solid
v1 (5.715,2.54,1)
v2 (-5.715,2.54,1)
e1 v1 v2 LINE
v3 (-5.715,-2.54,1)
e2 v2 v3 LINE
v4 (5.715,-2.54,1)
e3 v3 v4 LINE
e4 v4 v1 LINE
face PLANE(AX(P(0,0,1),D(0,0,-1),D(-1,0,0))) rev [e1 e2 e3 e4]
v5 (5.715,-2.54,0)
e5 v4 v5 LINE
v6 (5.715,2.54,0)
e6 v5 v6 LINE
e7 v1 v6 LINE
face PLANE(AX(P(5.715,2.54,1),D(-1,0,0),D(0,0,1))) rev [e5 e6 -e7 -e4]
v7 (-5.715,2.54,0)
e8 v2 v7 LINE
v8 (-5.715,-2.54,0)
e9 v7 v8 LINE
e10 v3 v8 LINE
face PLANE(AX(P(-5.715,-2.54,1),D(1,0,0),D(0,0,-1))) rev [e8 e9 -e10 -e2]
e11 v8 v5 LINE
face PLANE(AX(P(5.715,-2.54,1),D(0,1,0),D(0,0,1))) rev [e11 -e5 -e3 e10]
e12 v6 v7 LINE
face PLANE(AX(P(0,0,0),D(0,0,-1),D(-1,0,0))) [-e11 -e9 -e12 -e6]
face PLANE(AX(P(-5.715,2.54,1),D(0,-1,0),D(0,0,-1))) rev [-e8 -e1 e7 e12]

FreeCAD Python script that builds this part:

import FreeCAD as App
import Part
import Sketcher

V = App.Vector
Q = App.Units.Quantity

doc = App.newDocument("Part")
body = doc.addObject("PartDesign::Body", "Body")

sketch1 = body.newObject("Sketcher::SketchObject", "Sketch")
sketch1.AttachmentSupport = (doc.getObject("XY_Plane"), [""])
sketch1.MapMode = "FlatFace"
sketch1.addGeometry([
    Part.LineSegment(V(-6, 3, 0), V(-6, -3, 0)),
    Part.LineSegment(V(-6, -3, 0), V(6, -3, 0)),
    Part.LineSegment(V(6, -3, 0), V(6, 3, 0)),
    Part.LineSegment(V(6, 3, 0), V(-6, 3, 0)),
], False)
sketch1.addConstraint([
    Sketcher.Constraint("Coincident", 0, 2, 1, 1),
    Sketcher.Constraint("Coincident", 1, 2, 2, 1),
    Sketcher.Constraint("Coincident", 2, 2, 3, 1),
    Sketcher.Constraint("Coincident", 3, 2, 0, 1),
    Sketcher.Constraint("Vertical", 0),
    Sketcher.Constraint("Horizontal", 1),
    Sketcher.Constraint("Vertical", 2),
    Sketcher.Constraint("Horizontal", 3),
    Sketcher.Constraint("Symmetric", 0, 2, 2, 2, -1, 1),
    Sketcher.Constraint("DistanceY", 0, 2, 0, 1, Q("0.2 in")),
    Sketcher.Constraint("DistanceX", 1, 1, 1, 2, Q("0.45 in")),
])
pad1 = body.newObject("PartDesign::Pad", "Pad")
pad1.Profile = sketch1
pad1.Length = 1

doc.recompute()
